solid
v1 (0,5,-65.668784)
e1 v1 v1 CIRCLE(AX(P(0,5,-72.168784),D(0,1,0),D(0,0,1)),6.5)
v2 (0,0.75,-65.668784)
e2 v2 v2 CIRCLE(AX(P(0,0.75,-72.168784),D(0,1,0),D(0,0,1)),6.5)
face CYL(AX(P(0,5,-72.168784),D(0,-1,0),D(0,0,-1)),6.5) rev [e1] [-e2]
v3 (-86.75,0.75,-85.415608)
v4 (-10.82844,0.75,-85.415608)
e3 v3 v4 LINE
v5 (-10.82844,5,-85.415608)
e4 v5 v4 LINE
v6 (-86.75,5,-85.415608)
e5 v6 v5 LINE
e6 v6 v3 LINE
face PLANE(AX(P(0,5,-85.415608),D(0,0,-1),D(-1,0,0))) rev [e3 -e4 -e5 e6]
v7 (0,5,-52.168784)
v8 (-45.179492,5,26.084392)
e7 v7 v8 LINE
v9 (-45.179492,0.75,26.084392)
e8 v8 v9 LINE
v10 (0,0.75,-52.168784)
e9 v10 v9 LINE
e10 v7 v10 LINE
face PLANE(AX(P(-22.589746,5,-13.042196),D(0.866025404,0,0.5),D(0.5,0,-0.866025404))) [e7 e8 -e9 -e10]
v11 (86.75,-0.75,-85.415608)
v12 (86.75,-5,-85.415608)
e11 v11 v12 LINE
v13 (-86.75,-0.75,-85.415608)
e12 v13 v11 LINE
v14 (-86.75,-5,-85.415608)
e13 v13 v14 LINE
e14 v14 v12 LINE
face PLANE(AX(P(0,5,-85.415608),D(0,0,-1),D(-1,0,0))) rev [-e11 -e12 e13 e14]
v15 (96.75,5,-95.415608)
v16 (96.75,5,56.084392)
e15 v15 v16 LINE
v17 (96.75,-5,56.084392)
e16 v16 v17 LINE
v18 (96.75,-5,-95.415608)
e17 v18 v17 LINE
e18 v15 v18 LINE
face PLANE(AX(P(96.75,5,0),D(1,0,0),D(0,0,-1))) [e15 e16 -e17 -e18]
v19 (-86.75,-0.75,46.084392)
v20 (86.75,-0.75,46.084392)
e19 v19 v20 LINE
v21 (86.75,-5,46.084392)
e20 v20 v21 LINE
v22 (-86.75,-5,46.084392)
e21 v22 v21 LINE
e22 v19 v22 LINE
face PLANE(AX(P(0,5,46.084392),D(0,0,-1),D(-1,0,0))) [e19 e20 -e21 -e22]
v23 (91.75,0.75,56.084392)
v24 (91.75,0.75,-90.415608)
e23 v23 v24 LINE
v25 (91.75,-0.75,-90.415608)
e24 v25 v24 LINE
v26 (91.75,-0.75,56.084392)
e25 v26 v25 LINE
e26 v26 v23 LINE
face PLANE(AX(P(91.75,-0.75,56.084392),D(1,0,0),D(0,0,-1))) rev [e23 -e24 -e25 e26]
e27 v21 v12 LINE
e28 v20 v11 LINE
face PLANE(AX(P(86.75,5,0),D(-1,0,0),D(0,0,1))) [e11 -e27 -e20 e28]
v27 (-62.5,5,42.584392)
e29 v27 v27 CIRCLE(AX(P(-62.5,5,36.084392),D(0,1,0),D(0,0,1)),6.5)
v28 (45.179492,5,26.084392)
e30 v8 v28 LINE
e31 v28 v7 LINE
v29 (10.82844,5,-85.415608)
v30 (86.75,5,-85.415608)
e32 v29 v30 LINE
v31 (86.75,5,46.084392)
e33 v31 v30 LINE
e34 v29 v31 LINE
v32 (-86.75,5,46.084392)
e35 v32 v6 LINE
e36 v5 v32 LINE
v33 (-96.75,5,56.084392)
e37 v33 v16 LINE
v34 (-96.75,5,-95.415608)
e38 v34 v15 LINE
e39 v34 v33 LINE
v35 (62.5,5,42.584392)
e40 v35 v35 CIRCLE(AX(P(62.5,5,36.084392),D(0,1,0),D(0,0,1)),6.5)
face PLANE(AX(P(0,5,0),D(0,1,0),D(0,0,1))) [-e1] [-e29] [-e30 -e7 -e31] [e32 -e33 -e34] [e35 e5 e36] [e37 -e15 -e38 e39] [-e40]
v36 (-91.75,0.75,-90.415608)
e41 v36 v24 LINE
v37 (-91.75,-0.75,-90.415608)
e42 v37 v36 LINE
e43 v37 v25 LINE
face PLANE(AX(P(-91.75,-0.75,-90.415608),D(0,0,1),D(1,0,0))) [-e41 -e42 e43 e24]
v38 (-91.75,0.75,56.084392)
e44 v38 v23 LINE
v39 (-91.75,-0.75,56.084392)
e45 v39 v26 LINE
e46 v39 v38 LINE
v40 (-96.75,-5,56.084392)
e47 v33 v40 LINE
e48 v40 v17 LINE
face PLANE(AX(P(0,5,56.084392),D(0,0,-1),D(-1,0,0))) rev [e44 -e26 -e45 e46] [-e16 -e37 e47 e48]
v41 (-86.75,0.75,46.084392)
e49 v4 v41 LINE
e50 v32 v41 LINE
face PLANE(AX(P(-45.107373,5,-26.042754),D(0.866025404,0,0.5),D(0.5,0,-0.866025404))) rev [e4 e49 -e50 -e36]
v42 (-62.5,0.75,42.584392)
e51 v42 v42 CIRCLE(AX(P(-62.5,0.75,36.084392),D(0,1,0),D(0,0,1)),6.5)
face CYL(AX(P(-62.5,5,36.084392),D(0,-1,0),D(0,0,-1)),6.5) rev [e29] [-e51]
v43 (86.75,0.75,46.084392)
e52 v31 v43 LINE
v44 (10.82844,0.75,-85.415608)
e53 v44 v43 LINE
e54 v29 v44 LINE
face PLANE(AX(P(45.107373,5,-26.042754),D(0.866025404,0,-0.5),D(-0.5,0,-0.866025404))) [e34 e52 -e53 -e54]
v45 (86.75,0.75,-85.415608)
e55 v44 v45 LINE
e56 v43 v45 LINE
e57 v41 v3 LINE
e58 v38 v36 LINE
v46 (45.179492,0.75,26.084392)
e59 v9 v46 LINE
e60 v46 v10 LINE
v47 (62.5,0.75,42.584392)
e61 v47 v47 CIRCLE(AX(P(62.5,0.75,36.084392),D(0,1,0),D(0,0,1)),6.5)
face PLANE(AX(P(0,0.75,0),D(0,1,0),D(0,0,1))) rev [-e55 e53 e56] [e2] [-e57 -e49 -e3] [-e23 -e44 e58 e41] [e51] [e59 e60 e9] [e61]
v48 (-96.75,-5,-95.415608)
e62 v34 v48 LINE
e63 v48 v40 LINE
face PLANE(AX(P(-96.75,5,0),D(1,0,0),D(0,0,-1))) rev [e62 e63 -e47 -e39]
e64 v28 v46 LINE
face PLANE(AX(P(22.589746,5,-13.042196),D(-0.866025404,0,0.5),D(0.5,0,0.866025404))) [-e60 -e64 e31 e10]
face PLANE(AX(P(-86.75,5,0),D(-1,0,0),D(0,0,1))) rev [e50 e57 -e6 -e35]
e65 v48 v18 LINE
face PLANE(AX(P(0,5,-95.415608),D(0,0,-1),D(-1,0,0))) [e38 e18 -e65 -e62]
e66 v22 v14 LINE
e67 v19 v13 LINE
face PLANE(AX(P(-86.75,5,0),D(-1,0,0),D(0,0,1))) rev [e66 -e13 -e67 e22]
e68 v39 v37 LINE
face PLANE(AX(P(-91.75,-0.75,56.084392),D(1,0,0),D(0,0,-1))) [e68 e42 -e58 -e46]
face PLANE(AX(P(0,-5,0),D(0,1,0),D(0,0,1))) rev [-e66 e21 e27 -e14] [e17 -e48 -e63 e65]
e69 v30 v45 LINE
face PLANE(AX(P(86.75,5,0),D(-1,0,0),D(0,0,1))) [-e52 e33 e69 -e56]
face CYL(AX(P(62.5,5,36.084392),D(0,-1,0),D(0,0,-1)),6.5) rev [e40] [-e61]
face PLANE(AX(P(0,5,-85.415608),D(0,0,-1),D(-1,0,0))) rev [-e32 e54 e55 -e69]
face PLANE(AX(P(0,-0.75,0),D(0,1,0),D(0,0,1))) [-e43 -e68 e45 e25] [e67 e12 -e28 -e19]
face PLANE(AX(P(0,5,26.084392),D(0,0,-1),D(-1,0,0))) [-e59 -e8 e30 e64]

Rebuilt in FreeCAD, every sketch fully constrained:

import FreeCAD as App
import Part
import Sketcher

V = App.Vector
Q = App.Units.Quantity


def add_polygon(sketch, points):
    """Adds a closed chain of lines whose ends are joined by coincident constraints."""
    first, n = sketch.GeometryCount, len(points)
    for a, b in zip(points, points[1:] + points[:1]):
        sketch.addGeometry(Part.LineSegment(App.Vector(*a, 0), App.Vector(*b, 0)), False)
    for i in range(n):
        sketch.addConstraint(Sketcher.Constraint("Coincident", first + i, 2, first + (i + 1) % n, 1))

doc = App.newDocument("Part")
body = doc.addObject("PartDesign::Body", "Body")

# Sketch on XZ plane
sketch1 = body.newObject("Sketcher::SketchObject", "Sketch")
sketch1.AttachmentSupport = (doc.getObject("XZ_Plane"), [""])
sketch1.MapMode = "FlatFace"
add_polygon(sketch1, [(11, -85), (-11, -85), (-87, 46), (87, 46)])  # lines 0-3
sketch1.addGeometry(Part.Circle(V(-62, 36, 0), V(0, 0, 1), 6), False)  # 4
sketch1.addGeometry(Part.Circle(V(62, 36, 0), V(0, 0, 1), 6), False)  # 5
add_polygon(sketch1, [(45, 26), (-45, 26), (0, -52)])  # lines 6-8
sketch1.addGeometry(Part.Circle(V(0, -72, 0), V(0, 0, 1), 6), False)  # 9
sketch1.addConstraint([
    Sketcher.Constraint("Horizontal", 0),
    Sketcher.Constraint("Horizontal", 2),
    Sketcher.Constraint("Horizontal", 6),
    Sketcher.Constraint("Equal", 4, 5),
    Sketcher.Constraint("Equal", 5, 9),
    Sketcher.Constraint("Symmetric", 4, 3, 5, 3, -2),
    Sketcher.Constraint("PointOnObject", 9, 3, -2),
    Sketcher.Constraint("PointOnObject", 7, 2, -2),
    Sketcher.Constraint("Parallel", 1, 7),
    Sketcher.Constraint("Parallel", 3, 8),
    Sketcher.Constraint("Equal", 1, 3),
    Sketcher.Constraint("Diameter", 4, 13.0),
    Sketcher.Constraint("Angle", 1, Q("120 deg")),
    Sketcher.Constraint("DistanceX", 2, 1, 2, 2, 173.5),
    Sketcher.Constraint("DistanceX", 4, 3, 5, 3, 125.0),
    Sketcher.Constraint("DistanceY", 4, 3, 1, 2, 10.0),
    Sketcher.Constraint("DistanceY", 6, 2, 4, 3, 10.0),
    Sketcher.Constraint("DistanceY", 9, 3, 7, 2, 20.0),
    Sketcher.Constraint("DistanceY", 0, 2, 4, 3, 121.5),
    Sketcher.Constraint("DistanceX", 1, 2, -1, 1, 86.75),
    Sketcher.Constraint("DistanceX", 6, 2, 6, 1, 90.358984),
    Sketcher.Constraint("DistanceY", -1, 1, 4, 3, 36.084392),
])
pad1 = body.newObject("PartDesign::Pad", "Pad")
pad1.Profile = sketch1
pad1.Length = 5
pad1.Reversed = True

# Sketch on XZ plane
sketch2 = body.newObject("Sketcher::SketchObject", "Sketch001")
sketch2.AttachmentSupport = (doc.getObject("XZ_Plane"), [""])
sketch2.MapMode = "FlatFace"
add_polygon(sketch2, [(-97, -95), (-97, 56), (97, 56), (97, -95)])  # lines 0-3
add_polygon(sketch2, [(87, 46), (-87, 46), (-87, -85), (87, -85)])  # lines 4-7
sketch2.addConstraint([
    Sketcher.Constraint("Vertical", 0),
    Sketcher.Constraint("Horizontal", 1),
    Sketcher.Constraint("Vertical", 2),
    Sketcher.Constraint("Horizontal", 3),
    Sketcher.Constraint("Horizontal", 4),
    Sketcher.Constraint("Vertical", 5),
    Sketcher.Constraint("Horizontal", 6),
    Sketcher.Constraint("Vertical", 7),
    Sketcher.Constraint("DistanceX", 1, 1, 1, 2, 193.5),
    Sketcher.Constraint("DistanceX", 4, 2, 4, 1, 173.5),
    Sketcher.Constraint("DistanceY", 0, 1, 0, 2, 151.5),
    Sketcher.Constraint("DistanceY", 5, 2, 5, 1, 131.5),
    Sketcher.Constraint("DistanceX", 0, 2, 4, 2, 10.0),
    Sketcher.Constraint("DistanceY", 4, 2, 0, 2, 10.0),
    Sketcher.Constraint("DistanceX", 0, 2, -1, 1, 96.75),
    Sketcher.Constraint("DistanceY", -1, 1, 0, 2, 56.084392),
])
pad2 = body.newObject("PartDesign::Pad", "Pad001")
pad2.Profile = sketch2
pad2.Length = 10
pad2.Midplane = True

# Sketch on XZ plane
sketch3 = body.newObject("Sketcher::SketchObject", "Sketch002")
sketch3.AttachmentSupport = (doc.getObject("XZ_Plane"), [""])
sketch3.MapMode = "FlatFace"
add_polygon(sketch3, [(-92, -90), (-92, 56), (92, 56), (92, -90)])  # lines 0-3
sketch3.addConstraint([
    Sketcher.Constraint("Vertical", 0),
    Sketcher.Constraint("Horizontal", 1),
    Sketcher.Constraint("Vertical", 2),
    Sketcher.Constraint("Horizontal", 3),
    Sketcher.Constraint("DistanceX", 1, 1, 1, 2, 183.5),
    Sketcher.Constraint("DistanceY", 0, 1, 0, 2, 146.5),
    Sketcher.Constraint("DistanceX", 0, 2, -1, 1, 91.75),
    Sketcher.Constraint("DistanceY", -1, 1, 0, 2, 56.084392),
])
pocket1 = body.newObject("PartDesign::Pocket", "Pocket")
pocket1.Profile = sketch3
pocket1.Length = 1.5
pocket1.Midplane = True

doc.recompute()
